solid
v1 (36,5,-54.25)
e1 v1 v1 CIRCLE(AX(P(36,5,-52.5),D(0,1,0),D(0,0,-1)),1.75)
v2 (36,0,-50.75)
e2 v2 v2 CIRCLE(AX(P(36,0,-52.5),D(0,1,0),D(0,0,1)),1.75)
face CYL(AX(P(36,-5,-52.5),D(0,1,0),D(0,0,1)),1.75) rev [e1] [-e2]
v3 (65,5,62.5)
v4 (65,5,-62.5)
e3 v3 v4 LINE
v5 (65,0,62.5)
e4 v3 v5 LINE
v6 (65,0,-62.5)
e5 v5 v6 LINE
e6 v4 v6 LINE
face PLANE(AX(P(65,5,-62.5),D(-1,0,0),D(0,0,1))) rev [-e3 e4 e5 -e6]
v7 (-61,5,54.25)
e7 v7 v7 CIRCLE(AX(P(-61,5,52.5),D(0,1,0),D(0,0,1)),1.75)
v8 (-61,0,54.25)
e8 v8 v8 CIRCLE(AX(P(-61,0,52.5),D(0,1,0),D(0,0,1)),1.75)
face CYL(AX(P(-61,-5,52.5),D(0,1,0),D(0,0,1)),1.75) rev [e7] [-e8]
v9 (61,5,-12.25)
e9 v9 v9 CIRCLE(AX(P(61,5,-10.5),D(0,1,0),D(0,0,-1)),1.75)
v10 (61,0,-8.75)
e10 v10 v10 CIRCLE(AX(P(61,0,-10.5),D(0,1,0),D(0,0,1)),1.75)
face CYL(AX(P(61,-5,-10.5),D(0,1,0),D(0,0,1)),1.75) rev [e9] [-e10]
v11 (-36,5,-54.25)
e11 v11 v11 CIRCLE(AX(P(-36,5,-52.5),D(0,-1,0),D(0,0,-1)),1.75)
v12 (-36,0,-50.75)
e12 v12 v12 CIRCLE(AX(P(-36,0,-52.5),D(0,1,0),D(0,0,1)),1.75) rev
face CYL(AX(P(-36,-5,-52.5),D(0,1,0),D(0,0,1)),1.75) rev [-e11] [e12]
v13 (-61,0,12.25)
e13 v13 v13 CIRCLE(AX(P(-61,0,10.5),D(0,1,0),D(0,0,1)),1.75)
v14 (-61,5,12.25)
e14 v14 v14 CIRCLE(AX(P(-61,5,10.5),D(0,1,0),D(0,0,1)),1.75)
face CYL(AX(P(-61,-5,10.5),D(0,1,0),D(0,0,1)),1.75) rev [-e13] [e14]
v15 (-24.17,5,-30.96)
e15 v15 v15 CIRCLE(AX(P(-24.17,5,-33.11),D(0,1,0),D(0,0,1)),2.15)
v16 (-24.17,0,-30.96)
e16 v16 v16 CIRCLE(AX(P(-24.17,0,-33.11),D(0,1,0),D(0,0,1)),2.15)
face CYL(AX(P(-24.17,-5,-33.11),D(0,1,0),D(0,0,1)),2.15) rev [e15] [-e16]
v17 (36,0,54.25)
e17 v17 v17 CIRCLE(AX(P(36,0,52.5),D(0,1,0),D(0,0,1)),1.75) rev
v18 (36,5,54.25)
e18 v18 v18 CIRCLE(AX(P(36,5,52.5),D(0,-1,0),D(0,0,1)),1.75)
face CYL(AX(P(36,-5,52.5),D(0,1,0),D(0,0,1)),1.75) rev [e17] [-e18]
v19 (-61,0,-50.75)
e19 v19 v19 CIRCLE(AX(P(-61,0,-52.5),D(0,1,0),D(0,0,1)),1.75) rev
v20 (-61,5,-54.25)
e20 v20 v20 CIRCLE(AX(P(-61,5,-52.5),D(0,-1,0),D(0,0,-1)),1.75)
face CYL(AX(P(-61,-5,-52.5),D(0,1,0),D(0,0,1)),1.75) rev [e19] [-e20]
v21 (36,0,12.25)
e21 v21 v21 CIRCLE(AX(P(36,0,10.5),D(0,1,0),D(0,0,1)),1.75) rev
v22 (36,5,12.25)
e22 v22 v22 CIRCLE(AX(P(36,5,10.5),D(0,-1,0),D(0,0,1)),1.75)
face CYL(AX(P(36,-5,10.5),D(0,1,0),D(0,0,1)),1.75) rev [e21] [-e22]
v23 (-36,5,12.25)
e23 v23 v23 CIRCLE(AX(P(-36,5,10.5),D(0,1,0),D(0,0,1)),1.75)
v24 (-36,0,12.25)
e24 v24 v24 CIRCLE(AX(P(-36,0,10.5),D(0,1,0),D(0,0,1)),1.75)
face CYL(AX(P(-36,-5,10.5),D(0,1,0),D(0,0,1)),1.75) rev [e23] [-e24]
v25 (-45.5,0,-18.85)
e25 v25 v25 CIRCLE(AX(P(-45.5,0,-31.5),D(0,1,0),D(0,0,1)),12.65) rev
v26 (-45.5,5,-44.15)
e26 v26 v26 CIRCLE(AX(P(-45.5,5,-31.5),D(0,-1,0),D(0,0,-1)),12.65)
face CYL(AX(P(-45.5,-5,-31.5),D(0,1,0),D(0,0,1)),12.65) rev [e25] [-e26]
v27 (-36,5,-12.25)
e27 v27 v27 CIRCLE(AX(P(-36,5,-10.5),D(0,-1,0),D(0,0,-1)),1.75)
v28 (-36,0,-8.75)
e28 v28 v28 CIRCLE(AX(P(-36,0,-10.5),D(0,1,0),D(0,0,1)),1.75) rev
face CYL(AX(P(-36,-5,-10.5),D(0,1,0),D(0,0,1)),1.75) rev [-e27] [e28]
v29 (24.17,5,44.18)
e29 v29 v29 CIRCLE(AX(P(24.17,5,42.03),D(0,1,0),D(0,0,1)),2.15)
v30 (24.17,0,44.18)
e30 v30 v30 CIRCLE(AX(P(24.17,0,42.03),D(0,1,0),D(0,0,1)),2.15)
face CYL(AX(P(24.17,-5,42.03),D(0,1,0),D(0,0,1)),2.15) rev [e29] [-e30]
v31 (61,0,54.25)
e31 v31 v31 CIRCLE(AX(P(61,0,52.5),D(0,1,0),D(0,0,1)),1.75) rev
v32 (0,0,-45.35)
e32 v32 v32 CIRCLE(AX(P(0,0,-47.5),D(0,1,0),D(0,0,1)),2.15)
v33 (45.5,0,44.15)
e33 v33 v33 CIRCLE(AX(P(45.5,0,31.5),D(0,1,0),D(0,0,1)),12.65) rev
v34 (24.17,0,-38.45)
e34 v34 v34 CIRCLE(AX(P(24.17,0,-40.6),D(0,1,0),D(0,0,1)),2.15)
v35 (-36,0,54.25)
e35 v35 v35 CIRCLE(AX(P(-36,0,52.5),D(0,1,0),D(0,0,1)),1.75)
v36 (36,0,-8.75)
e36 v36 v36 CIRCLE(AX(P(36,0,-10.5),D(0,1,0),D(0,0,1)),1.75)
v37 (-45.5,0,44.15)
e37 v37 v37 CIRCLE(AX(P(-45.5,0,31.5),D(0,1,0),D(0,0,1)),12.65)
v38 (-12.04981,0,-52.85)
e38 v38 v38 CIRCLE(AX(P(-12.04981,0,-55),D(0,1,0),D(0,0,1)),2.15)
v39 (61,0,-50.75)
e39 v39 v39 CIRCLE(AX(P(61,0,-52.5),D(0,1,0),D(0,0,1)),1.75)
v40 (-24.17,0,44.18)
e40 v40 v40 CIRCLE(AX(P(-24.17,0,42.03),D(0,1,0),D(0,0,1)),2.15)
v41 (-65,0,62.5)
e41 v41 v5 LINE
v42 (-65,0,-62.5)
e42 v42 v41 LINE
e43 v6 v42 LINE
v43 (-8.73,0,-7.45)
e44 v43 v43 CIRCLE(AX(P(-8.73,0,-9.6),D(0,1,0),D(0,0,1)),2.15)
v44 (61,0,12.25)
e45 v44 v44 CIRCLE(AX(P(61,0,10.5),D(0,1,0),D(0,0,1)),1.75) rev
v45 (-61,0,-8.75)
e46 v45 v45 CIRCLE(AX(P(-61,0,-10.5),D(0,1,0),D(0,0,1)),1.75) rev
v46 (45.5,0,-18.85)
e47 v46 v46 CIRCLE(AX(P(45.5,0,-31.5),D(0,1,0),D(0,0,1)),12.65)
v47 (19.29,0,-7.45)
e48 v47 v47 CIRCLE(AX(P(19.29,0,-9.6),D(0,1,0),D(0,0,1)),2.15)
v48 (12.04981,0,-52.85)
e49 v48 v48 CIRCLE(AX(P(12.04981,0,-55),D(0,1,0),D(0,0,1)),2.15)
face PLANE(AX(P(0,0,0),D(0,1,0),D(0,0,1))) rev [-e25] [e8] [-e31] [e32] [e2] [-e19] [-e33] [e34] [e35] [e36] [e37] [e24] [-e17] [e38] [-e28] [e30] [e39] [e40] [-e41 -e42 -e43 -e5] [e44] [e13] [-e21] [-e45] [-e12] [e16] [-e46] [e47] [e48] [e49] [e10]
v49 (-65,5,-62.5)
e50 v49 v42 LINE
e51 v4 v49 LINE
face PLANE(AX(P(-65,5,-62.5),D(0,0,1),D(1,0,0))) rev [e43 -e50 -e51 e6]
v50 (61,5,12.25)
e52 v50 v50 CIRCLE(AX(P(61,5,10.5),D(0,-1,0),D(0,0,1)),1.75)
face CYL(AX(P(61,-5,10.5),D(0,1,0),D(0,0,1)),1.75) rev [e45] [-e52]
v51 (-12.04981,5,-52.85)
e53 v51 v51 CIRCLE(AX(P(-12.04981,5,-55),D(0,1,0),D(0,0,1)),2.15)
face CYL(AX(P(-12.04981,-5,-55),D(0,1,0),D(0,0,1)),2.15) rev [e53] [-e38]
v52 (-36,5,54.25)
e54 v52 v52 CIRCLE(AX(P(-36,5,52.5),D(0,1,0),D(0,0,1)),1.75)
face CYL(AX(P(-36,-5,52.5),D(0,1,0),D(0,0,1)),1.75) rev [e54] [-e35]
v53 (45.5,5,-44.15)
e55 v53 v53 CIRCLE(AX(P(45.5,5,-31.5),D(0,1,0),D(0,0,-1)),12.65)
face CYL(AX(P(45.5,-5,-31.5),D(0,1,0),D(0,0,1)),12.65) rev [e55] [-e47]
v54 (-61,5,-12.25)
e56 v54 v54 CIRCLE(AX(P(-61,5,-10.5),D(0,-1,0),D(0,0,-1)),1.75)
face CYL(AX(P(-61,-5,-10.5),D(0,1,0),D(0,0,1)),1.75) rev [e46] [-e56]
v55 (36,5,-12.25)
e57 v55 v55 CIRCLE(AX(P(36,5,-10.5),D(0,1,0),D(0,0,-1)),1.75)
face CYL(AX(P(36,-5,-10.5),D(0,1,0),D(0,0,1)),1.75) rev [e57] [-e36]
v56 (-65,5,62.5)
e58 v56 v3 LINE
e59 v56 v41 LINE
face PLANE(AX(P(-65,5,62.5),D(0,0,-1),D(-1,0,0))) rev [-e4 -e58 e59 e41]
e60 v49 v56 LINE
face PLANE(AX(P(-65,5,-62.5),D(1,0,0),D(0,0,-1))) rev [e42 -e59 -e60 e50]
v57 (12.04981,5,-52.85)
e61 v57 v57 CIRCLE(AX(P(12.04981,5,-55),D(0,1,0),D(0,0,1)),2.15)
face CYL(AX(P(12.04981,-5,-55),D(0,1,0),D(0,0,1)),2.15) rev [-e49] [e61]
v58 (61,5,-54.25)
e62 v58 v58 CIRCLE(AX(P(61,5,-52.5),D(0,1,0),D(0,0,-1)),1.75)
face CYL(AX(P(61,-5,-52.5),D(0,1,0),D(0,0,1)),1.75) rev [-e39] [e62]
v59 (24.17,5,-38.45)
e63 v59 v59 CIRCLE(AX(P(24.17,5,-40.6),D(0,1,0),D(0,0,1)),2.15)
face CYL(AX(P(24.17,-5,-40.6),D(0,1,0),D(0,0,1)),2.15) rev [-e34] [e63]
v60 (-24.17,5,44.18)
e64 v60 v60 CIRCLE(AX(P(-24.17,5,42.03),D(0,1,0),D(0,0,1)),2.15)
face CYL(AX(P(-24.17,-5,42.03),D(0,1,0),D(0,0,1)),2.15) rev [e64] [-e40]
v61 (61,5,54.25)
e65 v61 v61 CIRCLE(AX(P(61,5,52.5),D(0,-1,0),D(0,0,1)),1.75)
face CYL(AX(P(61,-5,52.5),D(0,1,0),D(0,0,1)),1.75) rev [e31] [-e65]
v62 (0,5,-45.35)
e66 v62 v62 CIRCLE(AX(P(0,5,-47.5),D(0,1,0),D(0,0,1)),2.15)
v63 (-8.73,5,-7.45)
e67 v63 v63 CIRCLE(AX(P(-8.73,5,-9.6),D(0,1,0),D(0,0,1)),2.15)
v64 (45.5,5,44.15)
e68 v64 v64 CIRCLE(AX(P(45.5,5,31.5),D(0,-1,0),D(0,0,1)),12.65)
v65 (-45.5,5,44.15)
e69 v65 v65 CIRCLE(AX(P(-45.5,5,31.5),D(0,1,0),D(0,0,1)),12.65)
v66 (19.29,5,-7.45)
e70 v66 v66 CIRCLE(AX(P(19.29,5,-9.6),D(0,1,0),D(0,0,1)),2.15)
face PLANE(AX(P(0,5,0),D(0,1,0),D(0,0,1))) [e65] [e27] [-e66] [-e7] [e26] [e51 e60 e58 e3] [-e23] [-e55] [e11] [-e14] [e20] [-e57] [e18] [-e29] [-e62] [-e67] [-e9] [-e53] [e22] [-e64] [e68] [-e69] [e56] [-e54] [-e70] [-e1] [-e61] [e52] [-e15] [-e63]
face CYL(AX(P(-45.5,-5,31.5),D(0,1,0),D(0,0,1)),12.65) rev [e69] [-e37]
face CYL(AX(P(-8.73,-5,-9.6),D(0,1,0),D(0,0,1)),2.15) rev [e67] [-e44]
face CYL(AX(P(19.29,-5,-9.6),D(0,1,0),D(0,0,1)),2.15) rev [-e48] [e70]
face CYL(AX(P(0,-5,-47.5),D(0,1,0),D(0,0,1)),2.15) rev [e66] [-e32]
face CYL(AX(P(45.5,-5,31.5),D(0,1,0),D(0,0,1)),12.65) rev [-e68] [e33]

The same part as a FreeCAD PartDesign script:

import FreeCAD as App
import Part
import Sketcher

V = App.Vector


def add_polygon(sketch, points):
    """Adds a closed chain of lines whose ends are joined by coincident constraints."""
    first, n = sketch.GeometryCount, len(points)
    for a, b in zip(points, points[1:] + points[:1]):
        sketch.addGeometry(Part.LineSegment(App.Vector(*a, 0), App.Vector(*b, 0)), False)
    for i in range(n):
        sketch.addConstraint(Sketcher.Constraint("Coincident", first + i, 2, first + (i + 1) % n, 1))

doc = App.newDocument("Part")
body = doc.addObject("PartDesign::Body", "Body")

# Sketch on XZ plane
sketch1 = body.newObject("Sketcher::SketchObject", "Sketch")
sketch1.AttachmentSupport = (doc.getObject("XZ_Plane"), [""])
sketch1.MapMode = "FlatFace"
add_polygon(sketch1, [(-65, -62), (-65, 62), (65, 62), (65, -62)])  # lines 0-3
sketch1.addConstraint(Sketcher.Constraint("Vertical", 0))
sketch1.addConstraint(Sketcher.Constraint("Horizontal", 1))
sketch1.addConstraint(Sketcher.Constraint("Vertical", 2))
sketch1.addConstraint(Sketcher.Constraint("Horizontal", 3))
sketch1.addConstraint(Sketcher.Constraint("Symmetric", 0, 2, 2, 2, -1, 1))
sketch1.addConstraint(Sketcher.Constraint("DistanceX", 1, 1, 1, 2, 130.0))
sketch1.addConstraint(Sketcher.Constraint("DistanceY", 0, 1, 0, 2, 125.0))
pad1 = body.newObject("PartDesign::Pad", "Pad")
pad1.Profile = sketch1
pad1.Length = 5
pad1.Reversed = True

# Sketch on XZ plane
sketch2 = body.newObject("Sketcher::SketchObject", "Sketch001")
sketch2.AttachmentSupport = (doc.getObject("XZ_Plane"), [""])
sketch2.MapMode = "FlatFace"
sketch2.AttachmentOffset = App.Placement(V(0, 0, -5), App.Rotation())
sketch2.addGeometry(Part.Circle(V(-61, 52.5, 0), V(0, 0, 1), 1.8), False)
sketch2.addGeometry(Part.Circle(V(-36, 52.5, 0), V(0, 0, 1), 1.8), False)
sketch2.addGeometry(Part.Circle(V(-36, 10.5, 0), V(0, 0, 1), 1.8), False)
sketch2.addGeometry(Part.Circle(V(-61, 10.5, 0), V(0, 0, 1), 1.8), False)
sketch2.addGeometry(Part.Circle(V(-45.5, 31.5, 0), V(0, 0, 1), 12.7), False)
sketch2.addConstraint(Sketcher.Constraint("Equal", 0, 1))
sketch2.addConstraint(Sketcher.Constraint("Equal", 1, 2))
sketch2.addConstraint(Sketcher.Constraint("Equal", 2, 3))
sketch2.addConstraint(Sketcher.Constraint("Horizontal", 0, 3, 1, 3))
sketch2.addConstraint(Sketcher.Constraint("Horizontal", 2, 3, 3, 3))
sketch2.addConstraint(Sketcher.Constraint("Vertical", 1, 3, 2, 3))
sketch2.addConstraint(Sketcher.Constraint("Vertical", 0, 3, 3, 3))
sketch2.addConstraint(Sketcher.Constraint("Diameter", 0, 3.5))
sketch2.addConstraint(Sketcher.Constraint("Diameter", 4, 25.3))
sketch2.addConstraint(Sketcher.Constraint("DistanceX", 0, 3, -1, 1, 61.0))
sketch2.addConstraint(Sketcher.Constraint("DistanceX", 1, 3, -1, 1, 36.0))
sketch2.addConstraint(Sketcher.Constraint("DistanceY", 2, 3, 1, 3, 42.0))
sketch2.addConstraint(Sketcher.Constraint("DistanceY", 4, 3, 1, 3, 21.0))
sketch2.addConstraint(Sketcher.Constraint("DistanceY", -1, 1, 0, 3, 52.5))
sketch2.addConstraint(Sketcher.Constraint("DistanceX", 4, 3, -1, 1, 45.5))
pocket1 = body.newObject("PartDesign::Pocket", "Pocket")
pocket1.Profile = sketch2
pocket1.Length = 10
pocket1.Reversed = True
doc.recompute()

mirrored = body.newObject("PartDesign::Mirrored", "Mirrored")
mirrored.Originals = [pocket1]
mirrored.MirrorPlane = (doc.getObject("YZ_Plane"), [""])
body.Tip = mirrored
doc.recompute()

mirrored2 = body.newObject("PartDesign::Mirrored", "Mirrored001")
mirrored2.Originals = [pocket1]
mirrored2.MirrorPlane = (doc.getObject("XY_Plane"), [""])
body.Tip = mirrored2

# Sketch on XZ plane
sketch3 = body.newObject("Sketcher::SketchObject", "Sketch002")
sketch3.AttachmentSupport = (doc.getObject("XZ_Plane"), [""])
sketch3.MapMode = "FlatFace"
sketch3.AttachmentOffset = App.Placement(V(0, 0, -5), App.Rotation())
sketch3.addGeometry(Part.Circle(V(61, -52.5, 0), V(0, 0, 1), 1.8), False)
sketch3.addGeometry(Part.Circle(V(36, -52.5, 0), V(0, 0, 1), 1.8), False)
sketch3.addGeometry(Part.Circle(V(36, -10.5, 0), V(0, 0, 1), 1.8), False)
sketch3.addGeometry(Part.Circle(V(61, -10.5, 0), V(0, 0, 1), 1.8), False)
sketch3.addGeometry(Part.Circle(V(45.5, -31.5, 0), V(0, 0, 1), 12.7), False)
sketch3.addConstraint(Sketcher.Constraint("Equal", 0, 1))
sketch3.addConstraint(Sketcher.Constraint("Equal", 1, 2))
sketch3.addConstraint(Sketcher.Constraint("Equal", 2, 3))
sketch3.addConstraint(Sketcher.Constraint("Horizontal", 0, 3, 1, 3))
sketch3.addConstraint(Sketcher.Constraint("Horizontal", 2, 3, 3, 3))
sketch3.addConstraint(Sketcher.Constraint("Vertical", 1, 3, 2, 3))
sketch3.addConstraint(Sketcher.Constraint("Vertical", 0, 3, 3, 3))
sketch3.addConstraint(Sketcher.Constraint("Diameter", 0, 3.5))
sketch3.addConstraint(Sketcher.Constraint("Diameter", 4, 25.3))
sketch3.addConstraint(Sketcher.Constraint("DistanceX", -1, 1, 0, 3, 61.0))
sketch3.addConstraint(Sketcher.Constraint("DistanceX", -1, 1, 1, 3, 36.0))
sketch3.addConstraint(Sketcher.Constraint("DistanceY", 1, 3, 2, 3, 42.0))
sketch3.addConstraint(Sketcher.Constraint("DistanceY", 1, 3, 4, 3, 21.0))
sketch3.addConstraint(Sketcher.Constraint("DistanceY", 0, 3, -1, 1, 52.5))
sketch3.addConstraint(Sketcher.Constraint("DistanceX", -1, 1, 4, 3, 45.5))
pocket2 = body.newObject("PartDesign::Pocket", "Pocket001")
pocket2.Profile = sketch3
pocket2.Length = 10
pocket2.Reversed = True

# Sketch on XZ plane
sketch4 = body.newObject("Sketcher::SketchObject", "Sketch003")
sketch4.AttachmentSupport = (doc.getObject("XZ_Plane"), [""])
sketch4.MapMode = "FlatFace"
sketch4.AttachmentOffset = App.Placement(V(0, 0, -5), App.Rotation())
sketch4.addGeometry(Part.Circle(V(-24.2, 42, 0), V(0, 0, 1), 2.1), False)
sketch4.addGeometry(Part.Circle(V(24.2, 42, 0), V(0, 0, 1), 2.1), False)
sketch4.addGeometry(Part.Circle(V(-8.7, -9.6, 0), V(0, 0, 1), 2.1), False)
sketch4.addGeometry(Part.Circle(V(19.3, -9.6, 0), V(0, 0, 1), 2.1), False)
sketch4.addGeometry(Part.Circle(V(-24.2, -33.1, 0), V(0, 0, 1), 2.1), False)
sketch4.addGeometry(Part.Circle(V(24.2, -40.6, 0), V(0, 0, 1), 2.1), False)
sketch4.addConstraint(Sketcher.Constraint("Equal", 0, 1))
sketch4.addConstraint(Sketcher.Constraint("Equal", 1, 2))
sketch4.addConstraint(Sketcher.Constraint("Equal", 2, 3))
sketch4.addConstraint(Sketcher.Constraint("Equal", 3, 4))
sketch4.addConstraint(Sketcher.Constraint("Equal", 4, 5))
sketch4.addConstraint(Sketcher.Constraint("Symmetric", 0, 3, 1, 3, -2))
sketch4.addConstraint(Sketcher.Constraint("Horizontal", 2, 3, 3, 3))
sketch4.addConstraint(Sketcher.Constraint("Vertical", 0, 3, 4, 3))
sketch4.addConstraint(Sketcher.Constraint("Vertical", 1, 3, 5, 3))
sketch4.addConstraint(Sketcher.Constraint("Diameter", 0, 4.3))
sketch4.addConstraint(Sketcher.Constraint("DistanceY", 5, 3, 3, 3, 31.0))
sketch4.addConstraint(Sketcher.Constraint("DistanceY", 2, 3, -1, 1, 9.6))
sketch4.addConstraint(Sketcher.Constraint("DistanceX", 2, 3, 1, 3, 32.9))
sketch4.addConstraint(Sketcher.Constraint("DistanceX", 0, 3, -1, 1, 24.17))
sketch4.addConstraint(Sketcher.Constraint("DistanceY", -1, 1, 0, 3, 42.03))
sketch4.addConstraint(Sketcher.Constraint("DistanceX", -1, 1, 3, 3, 19.29))
sketch4.addConstraint(Sketcher.Constraint("DistanceY", 4, 3, -1, 1, 33.11))
pocket3 = body.newObject("PartDesign::Pocket", "Pocket002")
pocket3.Profile = sketch4
pocket3.Length = 10
pocket3.Reversed = True

# Sketch on XZ plane
sketch5 = body.newObject("Sketcher::SketchObject", "Sketch004")
sketch5.AttachmentSupport = (doc.getObject("XZ_Plane"), [""])
sketch5.MapMode = "FlatFace"
sketch5.AttachmentOffset = App.Placement(V(0, 0, -5), App.Rotation())
sketch5.addGeometry(Part.Circle(V(0, -47.5, 0), V(0, 0, 1), 2.1), False)
sketch5.addGeometry(Part.Circle(V(12, -55, 0), V(0, 0, 1), 2.1), False)
sketch5.addGeometry(Part.Circle(V(-12, -55, 0), V(0, 0, 1), 2.1), False)
sketch5.addConstraint(Sketcher.Constraint("Equal", 0, 1))
sketch5.addConstraint(Sketcher.Constraint("Equal", 1, 2))
sketch5.addConstraint(Sketcher.Constraint("Symmetric", 1, 3, 2, 3, -2))
sketch5.addConstraint(Sketcher.Constraint("PointOnObject", 0, 3, -2))
sketch5.addConstraint(Sketcher.Constraint("Diameter", 0, 4.3))
sketch5.addConstraint(Sketcher.Constraint("DistanceY", 1, 3, -1, 1, 55.0))
sketch5.addConstraint(Sketcher.Constraint("DistanceY", 0, 3, -1, 1, 47.5))
sketch5.addConstraint(Sketcher.Constraint("DistanceX", -1, 1, 1, 3, 12.04981))
pocket4 = body.newObject("PartDesign::Pocket", "Pocket003")
pocket4.Profile = sketch5
pocket4.Length = 10
pocket4.Reversed = True

doc.recompute()
